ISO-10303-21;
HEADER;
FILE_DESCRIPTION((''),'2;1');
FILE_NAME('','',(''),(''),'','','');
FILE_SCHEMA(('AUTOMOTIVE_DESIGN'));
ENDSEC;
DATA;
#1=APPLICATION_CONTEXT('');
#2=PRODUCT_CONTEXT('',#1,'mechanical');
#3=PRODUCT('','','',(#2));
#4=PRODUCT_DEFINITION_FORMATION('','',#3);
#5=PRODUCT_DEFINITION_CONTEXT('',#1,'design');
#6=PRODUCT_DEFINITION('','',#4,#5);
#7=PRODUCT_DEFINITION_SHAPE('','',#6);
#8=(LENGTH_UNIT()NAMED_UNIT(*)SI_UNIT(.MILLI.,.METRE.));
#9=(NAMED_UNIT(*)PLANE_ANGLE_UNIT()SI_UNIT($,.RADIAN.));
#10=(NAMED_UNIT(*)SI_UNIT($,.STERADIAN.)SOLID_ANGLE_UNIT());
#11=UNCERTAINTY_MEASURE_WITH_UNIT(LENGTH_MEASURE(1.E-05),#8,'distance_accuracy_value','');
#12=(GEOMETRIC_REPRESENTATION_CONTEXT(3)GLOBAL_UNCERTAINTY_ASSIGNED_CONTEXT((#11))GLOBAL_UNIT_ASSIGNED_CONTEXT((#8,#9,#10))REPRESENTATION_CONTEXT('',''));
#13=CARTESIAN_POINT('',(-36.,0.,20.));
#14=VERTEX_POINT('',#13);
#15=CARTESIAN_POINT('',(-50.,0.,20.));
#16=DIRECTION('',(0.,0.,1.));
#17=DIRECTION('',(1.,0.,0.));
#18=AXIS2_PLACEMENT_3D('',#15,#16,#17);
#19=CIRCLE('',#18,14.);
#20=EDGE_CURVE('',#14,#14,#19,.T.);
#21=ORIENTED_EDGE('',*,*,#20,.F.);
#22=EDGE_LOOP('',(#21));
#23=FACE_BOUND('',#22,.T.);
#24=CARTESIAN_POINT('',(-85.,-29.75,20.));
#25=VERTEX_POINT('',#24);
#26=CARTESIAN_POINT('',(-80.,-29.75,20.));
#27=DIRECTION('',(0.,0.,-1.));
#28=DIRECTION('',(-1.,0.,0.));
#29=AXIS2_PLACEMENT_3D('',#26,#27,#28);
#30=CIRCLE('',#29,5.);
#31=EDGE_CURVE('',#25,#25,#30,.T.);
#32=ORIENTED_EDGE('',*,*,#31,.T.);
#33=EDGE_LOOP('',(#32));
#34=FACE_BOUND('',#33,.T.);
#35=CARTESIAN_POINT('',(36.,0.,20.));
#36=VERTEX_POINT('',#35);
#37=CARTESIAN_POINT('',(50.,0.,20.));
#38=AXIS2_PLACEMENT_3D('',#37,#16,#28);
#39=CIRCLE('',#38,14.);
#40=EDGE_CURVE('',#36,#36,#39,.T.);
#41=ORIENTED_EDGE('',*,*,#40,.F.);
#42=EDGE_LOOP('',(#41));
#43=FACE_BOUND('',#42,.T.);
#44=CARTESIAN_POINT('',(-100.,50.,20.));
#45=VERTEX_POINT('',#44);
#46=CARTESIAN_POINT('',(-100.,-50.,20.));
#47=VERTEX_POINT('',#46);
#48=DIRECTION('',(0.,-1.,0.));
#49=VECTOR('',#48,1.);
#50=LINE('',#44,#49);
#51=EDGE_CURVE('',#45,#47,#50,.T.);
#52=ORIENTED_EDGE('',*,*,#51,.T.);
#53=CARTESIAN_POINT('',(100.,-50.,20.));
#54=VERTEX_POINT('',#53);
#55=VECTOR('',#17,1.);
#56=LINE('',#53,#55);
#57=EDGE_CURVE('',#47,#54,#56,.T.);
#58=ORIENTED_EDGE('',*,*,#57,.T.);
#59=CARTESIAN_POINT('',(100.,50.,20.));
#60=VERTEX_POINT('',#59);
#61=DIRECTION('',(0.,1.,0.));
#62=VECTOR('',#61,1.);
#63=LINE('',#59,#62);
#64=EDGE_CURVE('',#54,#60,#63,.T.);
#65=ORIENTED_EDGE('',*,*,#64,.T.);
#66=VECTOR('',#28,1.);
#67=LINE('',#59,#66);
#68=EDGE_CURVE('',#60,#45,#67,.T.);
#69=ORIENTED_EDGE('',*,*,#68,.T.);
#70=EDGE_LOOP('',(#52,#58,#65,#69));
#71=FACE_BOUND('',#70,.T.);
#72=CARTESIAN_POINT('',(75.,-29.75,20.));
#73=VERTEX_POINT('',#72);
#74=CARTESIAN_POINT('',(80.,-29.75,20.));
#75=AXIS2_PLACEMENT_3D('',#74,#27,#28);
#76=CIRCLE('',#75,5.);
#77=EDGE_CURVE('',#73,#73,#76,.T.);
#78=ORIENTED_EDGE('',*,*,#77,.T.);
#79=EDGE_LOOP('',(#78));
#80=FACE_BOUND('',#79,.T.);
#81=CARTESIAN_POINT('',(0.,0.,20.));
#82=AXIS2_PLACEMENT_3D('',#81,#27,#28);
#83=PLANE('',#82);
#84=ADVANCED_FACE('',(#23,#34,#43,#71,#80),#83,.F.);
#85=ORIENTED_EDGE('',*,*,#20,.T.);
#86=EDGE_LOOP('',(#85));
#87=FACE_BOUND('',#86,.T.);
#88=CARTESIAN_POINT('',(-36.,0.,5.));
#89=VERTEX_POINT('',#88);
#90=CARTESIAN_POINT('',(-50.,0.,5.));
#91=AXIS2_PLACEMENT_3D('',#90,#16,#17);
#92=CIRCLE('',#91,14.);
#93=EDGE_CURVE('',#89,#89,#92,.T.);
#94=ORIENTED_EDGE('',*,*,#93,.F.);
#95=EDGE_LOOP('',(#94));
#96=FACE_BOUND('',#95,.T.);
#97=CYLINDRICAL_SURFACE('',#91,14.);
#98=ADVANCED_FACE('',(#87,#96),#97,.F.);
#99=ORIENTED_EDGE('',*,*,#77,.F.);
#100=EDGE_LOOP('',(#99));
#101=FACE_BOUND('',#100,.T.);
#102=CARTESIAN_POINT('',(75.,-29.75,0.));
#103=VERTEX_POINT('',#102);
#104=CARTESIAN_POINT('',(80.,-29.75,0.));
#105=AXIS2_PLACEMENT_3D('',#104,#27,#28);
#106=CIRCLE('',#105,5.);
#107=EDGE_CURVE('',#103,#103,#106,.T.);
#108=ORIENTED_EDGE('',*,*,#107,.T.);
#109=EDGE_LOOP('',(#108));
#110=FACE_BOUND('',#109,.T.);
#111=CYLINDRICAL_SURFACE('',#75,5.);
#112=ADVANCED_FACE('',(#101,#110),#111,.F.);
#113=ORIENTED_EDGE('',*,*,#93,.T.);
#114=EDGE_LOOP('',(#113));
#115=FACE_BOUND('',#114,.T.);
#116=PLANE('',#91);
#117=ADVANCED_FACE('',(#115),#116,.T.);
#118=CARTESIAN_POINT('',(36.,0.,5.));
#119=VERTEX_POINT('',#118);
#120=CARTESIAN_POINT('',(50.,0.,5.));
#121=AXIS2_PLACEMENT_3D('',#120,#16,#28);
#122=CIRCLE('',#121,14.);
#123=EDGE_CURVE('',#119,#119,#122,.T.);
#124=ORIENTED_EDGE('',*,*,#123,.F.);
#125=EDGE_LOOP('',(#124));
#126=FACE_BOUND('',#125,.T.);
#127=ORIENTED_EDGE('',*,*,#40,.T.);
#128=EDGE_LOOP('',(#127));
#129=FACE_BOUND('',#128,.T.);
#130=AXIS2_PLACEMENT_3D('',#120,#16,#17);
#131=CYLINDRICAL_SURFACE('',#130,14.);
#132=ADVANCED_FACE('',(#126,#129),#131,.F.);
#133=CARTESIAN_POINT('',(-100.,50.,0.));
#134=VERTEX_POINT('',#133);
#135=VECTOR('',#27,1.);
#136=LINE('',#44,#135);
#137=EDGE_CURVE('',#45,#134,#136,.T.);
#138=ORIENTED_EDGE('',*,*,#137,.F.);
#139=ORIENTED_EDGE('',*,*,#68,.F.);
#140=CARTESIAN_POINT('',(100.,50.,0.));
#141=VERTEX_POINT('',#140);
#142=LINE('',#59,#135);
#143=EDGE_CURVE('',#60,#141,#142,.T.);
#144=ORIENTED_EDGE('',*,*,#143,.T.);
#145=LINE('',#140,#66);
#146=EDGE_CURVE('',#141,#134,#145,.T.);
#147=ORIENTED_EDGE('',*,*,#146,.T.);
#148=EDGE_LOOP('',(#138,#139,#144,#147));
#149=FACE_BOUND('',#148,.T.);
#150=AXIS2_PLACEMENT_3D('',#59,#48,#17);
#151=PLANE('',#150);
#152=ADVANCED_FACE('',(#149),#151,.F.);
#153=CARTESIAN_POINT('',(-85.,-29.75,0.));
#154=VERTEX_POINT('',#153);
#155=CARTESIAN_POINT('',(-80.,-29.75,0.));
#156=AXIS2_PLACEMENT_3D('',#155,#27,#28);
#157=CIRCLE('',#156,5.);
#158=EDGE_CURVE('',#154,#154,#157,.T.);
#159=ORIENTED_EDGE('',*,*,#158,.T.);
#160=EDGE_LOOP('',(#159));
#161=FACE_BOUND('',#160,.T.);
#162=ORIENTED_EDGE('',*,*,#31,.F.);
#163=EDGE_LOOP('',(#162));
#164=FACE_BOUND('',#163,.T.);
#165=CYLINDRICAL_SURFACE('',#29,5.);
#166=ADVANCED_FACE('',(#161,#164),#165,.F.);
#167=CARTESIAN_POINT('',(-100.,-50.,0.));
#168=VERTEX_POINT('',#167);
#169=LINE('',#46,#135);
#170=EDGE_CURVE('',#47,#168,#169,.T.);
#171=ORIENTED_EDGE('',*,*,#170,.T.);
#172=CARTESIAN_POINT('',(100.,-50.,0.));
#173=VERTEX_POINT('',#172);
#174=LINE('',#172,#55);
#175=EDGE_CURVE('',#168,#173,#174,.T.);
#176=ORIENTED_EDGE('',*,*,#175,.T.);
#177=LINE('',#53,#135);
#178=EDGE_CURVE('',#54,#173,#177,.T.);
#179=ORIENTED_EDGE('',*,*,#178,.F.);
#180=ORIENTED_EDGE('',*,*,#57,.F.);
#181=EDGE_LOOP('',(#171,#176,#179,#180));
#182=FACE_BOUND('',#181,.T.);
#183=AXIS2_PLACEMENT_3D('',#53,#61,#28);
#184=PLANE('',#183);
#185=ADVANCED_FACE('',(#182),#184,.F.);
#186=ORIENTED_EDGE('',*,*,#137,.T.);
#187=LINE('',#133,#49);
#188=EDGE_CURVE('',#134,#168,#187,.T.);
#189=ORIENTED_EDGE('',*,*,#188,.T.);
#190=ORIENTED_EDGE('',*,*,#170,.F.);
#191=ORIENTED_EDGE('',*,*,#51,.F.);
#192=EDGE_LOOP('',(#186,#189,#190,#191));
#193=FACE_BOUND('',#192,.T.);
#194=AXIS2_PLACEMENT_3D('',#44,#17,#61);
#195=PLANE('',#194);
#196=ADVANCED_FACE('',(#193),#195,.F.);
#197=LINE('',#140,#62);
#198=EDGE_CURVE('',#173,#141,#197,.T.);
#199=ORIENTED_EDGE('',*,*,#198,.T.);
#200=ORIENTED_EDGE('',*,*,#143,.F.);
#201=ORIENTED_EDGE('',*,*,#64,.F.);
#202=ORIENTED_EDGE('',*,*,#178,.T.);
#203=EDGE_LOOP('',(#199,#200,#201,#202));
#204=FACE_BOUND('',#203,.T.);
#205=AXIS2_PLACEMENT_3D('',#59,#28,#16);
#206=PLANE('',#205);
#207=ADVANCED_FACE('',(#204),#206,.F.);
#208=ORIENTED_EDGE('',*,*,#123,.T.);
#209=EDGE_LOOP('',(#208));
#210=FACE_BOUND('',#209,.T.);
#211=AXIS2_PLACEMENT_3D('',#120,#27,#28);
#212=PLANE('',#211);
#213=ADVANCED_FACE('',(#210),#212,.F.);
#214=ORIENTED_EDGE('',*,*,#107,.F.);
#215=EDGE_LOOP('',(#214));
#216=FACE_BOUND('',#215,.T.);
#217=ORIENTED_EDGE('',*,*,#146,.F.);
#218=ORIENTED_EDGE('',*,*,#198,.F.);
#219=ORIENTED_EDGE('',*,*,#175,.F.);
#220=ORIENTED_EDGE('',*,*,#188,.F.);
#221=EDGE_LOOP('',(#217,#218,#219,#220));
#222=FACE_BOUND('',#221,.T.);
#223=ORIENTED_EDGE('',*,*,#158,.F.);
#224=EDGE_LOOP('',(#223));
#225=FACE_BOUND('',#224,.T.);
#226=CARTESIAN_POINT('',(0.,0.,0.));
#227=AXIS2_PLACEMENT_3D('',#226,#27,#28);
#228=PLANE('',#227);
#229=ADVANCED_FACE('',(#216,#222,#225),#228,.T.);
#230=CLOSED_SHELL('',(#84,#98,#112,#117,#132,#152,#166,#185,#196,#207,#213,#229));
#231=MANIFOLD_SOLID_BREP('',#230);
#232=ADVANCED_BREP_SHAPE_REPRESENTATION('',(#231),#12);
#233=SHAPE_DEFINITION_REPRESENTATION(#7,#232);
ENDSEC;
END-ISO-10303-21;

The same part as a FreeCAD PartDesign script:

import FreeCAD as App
import Part
import Sketcher
from FreeCAD import Vector
Q = App.Units.Quantity

doc = App.newDocument("Part")
body = doc.addObject("PartDesign::Body", "Body")

# Sketch on XY plane
sketch1 = doc.addObject("Sketcher::SketchObject", "Sketch")
body.addObject(sketch1)
sketch1.AttachmentSupport = (doc.XY_Plane, [""])
sketch1.MapMode = "FlatFace"
sketch1.addGeometry([
    Part.LineSegment(Vector(-100, 50, 0), Vector(-100, -50, 0)),
    Part.LineSegment(Vector(-100, -50, 0), Vector(100, -50, 0)),
    Part.LineSegment(Vector(100, -50, 0), Vector(100, 50, 0)),
    Part.LineSegment(Vector(100, 50, 0), Vector(-100, 50, 0)),
], False)
sketch1.addConstraint([
    Sketcher.Constraint("Coincident", 0, 2, 1, 1),
    Sketcher.Constraint("Coincident", 1, 2, 2, 1),
    Sketcher.Constraint("Coincident", 2, 2, 3, 1),
    Sketcher.Constraint("Coincident", 3, 2, 0, 1),
    Sketcher.Constraint("Vertical", 0),
    Sketcher.Constraint("Horizontal", 1),
    Sketcher.Constraint("Vertical", 2),
    Sketcher.Constraint("Horizontal", 3),
    Sketcher.Constraint("Symmetric", 0, 2, 2, 2, -1, 1),
    Sketcher.Constraint("DistanceX", 1, 1, 1, 2, Q("200 mm")),
    Sketcher.Constraint("DistanceY", 0, 2, 0, 1, Q("100 mm")),
])
pad1 = doc.addObject("PartDesign::Pad", "Pad")
body.addObject(pad1)
pad1.Profile = sketch1
pad1.Length = 20

# Sketch on XY plane
sketch2 = doc.addObject("Sketcher::SketchObject", "Sketch001")
body.addObject(sketch2)
sketch2.AttachmentSupport = (doc.XY_Plane, [""])
sketch2.MapMode = "FlatFace"
sketch2.AttachmentOffset = App.Placement(Vector(0, 0, 20), App.Rotation())
sketch2.addGeometry([
    Part.Circle(Vector(-50, 0, 0), Vector(0, 0, 1), 14),
    Part.Circle(Vector(50, 0, 0), Vector(0, 0, 1), 14),
], False)
sketch2.addConstraint([
    Sketcher.Constraint("Equal", 0, 1),
    Sketcher.Constraint("Symmetric", 0, 3, 1, 3, -1, 1),
    Sketcher.Constraint("PointOnObject", 0, 3, -1),
    Sketcher.Constraint("Diameter", 0, Q("28 mm")),
    Sketcher.Constraint("DistanceX", 0, 3, -1, 1, Q("50 mm")),
])
pocket1 = doc.addObject("PartDesign::Pocket", "Pocket")
body.addObject(pocket1)
pocket1.Profile = sketch2
pocket1.Length = 15

# Sketch on XY plane
sketch3 = doc.addObject("Sketcher::SketchObject", "Sketch002")
body.addObject(sketch3)
sketch3.AttachmentSupport = (doc.XY_Plane, [""])
sketch3.MapMode = "FlatFace"
sketch3.addGeometry([
    Part.Circle(Vector(80, -30, 0), Vector(0, 0, 1), 5),
    Part.Circle(Vector(-80, -30, 0), Vector(0, 0, 1), 5),
], False)
sketch3.addConstraint([
    Sketcher.Constraint("Equal", 0, 1),
    Sketcher.Constraint("Symmetric", 0, 3, 1, 3, -2),
    Sketcher.Constraint("Diameter", 0, Q("10 mm")),
    Sketcher.Constraint("DistanceX", -1, 1, 0, 3, Q("80 mm")),
    Sketcher.Constraint("DistanceY", 0, 3, -1, 1, Q("29.75 mm")),
])
pocket2 = doc.addObject("PartDesign::Pocket", "Pocket001")
body.addObject(pocket2)
pocket2.Profile = sketch3
pocket2.Type = "ThroughAll"
pocket2.Reversed = True

doc.recompute()
